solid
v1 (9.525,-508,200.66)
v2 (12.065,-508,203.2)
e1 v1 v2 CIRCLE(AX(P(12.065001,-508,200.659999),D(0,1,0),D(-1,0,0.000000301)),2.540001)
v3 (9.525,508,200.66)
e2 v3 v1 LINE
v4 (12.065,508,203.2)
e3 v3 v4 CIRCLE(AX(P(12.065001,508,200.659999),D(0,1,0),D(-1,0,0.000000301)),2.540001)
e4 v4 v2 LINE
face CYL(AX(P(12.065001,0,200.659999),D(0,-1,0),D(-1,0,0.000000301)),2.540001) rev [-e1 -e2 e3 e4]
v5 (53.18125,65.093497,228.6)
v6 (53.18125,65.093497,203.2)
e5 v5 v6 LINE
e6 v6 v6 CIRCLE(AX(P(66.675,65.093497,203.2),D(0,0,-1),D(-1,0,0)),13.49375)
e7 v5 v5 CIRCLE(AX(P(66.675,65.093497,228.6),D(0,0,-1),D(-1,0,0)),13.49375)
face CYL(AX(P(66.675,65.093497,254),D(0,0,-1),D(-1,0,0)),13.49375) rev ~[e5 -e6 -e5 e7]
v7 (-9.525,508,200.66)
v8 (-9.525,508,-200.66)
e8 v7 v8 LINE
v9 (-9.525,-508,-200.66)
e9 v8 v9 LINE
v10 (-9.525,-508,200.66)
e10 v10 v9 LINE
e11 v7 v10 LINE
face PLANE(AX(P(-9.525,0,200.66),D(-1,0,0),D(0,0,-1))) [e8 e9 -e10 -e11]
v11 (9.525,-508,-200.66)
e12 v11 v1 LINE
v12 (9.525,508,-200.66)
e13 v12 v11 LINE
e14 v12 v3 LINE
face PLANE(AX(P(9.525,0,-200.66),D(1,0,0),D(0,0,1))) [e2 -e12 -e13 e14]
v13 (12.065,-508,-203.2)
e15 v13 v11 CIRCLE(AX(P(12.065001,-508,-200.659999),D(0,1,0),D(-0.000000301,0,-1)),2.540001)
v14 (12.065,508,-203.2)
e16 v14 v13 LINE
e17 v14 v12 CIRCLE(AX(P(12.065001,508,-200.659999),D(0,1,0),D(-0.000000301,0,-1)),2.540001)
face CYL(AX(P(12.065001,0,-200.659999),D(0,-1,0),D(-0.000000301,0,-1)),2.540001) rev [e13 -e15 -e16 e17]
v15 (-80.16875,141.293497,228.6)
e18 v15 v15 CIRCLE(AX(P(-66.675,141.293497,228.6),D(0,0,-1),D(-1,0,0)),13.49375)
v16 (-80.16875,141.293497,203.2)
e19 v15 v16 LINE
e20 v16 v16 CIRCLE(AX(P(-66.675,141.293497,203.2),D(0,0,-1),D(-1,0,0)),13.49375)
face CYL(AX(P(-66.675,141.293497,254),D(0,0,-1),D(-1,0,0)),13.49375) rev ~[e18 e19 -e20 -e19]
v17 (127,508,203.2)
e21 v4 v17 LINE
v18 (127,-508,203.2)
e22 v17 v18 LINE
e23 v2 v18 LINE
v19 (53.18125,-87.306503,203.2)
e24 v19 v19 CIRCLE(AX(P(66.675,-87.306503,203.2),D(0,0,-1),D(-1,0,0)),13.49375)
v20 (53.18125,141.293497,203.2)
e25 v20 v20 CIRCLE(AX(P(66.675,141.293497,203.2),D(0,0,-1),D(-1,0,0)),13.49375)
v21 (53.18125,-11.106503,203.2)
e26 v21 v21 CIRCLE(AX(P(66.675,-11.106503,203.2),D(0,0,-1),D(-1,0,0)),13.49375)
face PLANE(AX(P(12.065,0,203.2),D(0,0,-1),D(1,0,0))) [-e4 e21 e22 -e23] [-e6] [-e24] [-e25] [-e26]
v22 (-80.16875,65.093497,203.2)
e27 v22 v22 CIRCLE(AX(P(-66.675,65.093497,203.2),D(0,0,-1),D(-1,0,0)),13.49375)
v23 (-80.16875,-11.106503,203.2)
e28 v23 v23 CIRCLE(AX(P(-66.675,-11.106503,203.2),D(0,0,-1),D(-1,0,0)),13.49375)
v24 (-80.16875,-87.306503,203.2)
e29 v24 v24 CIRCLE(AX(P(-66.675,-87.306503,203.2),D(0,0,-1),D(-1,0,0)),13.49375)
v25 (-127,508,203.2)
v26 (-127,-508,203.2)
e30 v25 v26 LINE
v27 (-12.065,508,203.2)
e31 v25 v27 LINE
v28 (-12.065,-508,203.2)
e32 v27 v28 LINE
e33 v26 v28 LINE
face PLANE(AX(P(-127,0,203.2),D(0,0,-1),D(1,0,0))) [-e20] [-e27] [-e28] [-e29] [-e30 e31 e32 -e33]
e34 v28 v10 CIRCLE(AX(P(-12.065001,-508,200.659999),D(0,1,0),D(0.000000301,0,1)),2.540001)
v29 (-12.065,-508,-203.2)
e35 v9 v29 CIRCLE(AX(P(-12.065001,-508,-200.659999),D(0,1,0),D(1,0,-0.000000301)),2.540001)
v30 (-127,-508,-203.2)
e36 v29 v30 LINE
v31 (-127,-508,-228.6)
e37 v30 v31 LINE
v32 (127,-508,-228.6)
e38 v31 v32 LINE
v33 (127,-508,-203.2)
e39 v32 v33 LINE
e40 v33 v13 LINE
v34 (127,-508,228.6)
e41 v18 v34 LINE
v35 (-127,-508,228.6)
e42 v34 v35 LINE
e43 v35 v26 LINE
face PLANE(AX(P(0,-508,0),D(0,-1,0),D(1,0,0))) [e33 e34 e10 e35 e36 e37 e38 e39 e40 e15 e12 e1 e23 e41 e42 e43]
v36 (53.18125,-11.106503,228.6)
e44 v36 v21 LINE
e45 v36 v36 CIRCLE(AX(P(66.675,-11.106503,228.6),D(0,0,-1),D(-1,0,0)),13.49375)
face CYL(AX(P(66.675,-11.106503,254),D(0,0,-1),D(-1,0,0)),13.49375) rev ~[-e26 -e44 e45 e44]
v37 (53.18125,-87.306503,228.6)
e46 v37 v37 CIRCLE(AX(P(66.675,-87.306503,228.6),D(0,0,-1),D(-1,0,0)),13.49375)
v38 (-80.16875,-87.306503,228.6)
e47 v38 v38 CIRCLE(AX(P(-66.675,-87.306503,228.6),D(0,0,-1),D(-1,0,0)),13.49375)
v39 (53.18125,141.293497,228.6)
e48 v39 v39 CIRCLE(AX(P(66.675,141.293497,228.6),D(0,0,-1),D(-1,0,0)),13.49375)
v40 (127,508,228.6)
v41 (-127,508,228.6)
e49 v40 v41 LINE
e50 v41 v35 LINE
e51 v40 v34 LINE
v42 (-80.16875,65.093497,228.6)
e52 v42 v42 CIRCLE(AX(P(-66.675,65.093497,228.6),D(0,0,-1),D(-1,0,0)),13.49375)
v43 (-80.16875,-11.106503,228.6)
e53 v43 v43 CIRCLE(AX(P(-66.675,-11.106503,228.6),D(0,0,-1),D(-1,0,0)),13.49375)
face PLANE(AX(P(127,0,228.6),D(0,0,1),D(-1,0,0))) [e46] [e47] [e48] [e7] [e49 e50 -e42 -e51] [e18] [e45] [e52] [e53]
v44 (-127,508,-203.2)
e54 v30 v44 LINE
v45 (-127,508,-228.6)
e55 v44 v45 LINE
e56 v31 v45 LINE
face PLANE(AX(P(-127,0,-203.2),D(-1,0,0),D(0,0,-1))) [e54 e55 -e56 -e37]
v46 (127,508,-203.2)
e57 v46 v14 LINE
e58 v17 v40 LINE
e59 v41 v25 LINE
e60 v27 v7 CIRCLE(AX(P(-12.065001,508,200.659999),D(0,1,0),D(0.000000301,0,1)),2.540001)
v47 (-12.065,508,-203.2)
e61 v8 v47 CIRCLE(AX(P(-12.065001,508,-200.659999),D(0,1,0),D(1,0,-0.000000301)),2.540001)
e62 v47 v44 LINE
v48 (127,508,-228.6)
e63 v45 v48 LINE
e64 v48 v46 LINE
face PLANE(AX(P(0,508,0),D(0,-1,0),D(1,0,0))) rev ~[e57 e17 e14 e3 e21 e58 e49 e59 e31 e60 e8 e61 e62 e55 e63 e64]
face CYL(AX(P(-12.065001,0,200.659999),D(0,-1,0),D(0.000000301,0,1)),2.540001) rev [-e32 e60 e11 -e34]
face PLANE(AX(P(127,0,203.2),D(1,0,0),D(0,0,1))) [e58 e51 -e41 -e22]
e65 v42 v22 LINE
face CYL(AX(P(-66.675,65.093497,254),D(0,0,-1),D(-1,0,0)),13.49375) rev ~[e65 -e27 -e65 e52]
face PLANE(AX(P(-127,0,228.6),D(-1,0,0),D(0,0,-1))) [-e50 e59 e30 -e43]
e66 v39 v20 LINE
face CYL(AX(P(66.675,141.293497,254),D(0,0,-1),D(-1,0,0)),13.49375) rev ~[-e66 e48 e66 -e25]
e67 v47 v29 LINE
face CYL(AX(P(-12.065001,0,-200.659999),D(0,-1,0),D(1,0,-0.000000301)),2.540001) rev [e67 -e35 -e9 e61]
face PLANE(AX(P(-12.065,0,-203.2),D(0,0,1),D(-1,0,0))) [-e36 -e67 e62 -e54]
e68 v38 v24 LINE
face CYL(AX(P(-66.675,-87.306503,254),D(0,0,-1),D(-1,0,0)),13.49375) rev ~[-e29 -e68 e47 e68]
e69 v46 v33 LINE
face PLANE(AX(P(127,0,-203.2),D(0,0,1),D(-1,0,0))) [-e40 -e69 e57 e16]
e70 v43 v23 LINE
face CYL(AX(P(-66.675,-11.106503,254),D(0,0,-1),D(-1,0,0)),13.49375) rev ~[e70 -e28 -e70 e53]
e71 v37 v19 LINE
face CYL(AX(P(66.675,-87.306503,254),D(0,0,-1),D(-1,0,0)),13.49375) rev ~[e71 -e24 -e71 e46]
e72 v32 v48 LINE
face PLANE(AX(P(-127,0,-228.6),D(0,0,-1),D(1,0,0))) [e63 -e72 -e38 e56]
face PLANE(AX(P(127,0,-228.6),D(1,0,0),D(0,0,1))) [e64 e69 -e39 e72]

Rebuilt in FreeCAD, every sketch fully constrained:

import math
import FreeCAD as App
import Part
import Sketcher

V = App.Vector
Q = App.Units.Quantity

doc = App.newDocument("Part")
body = doc.addObject("PartDesign::Body", "Body")

# Sketch on XZ plane
sketch1 = body.newObject("Sketcher::SketchObject", "Sketch")
sketch1.AttachmentSupport = (doc.getObject("XZ_Plane"), [""])
sketch1.MapMode = "FlatFace"
sketch1.addGeometry(Part.LineSegment(V(127, -228.6, 0), V(127, -203.2, 0)), False)
sketch1.addGeometry(Part.LineSegment(V(127, -203.2, 0), V(12.065, -203.2, 0)), False)
sketch1.addGeometry(Part.ArcOfCircle(Part.Circle(V(12.065001, -200.659999, 0), V(0, 0, 1), 2.540001), math.radians(-179.999983), math.radians(-90.000017)), False)
sketch1.addGeometry(Part.LineSegment(V(9.525, -200.66, 0), V(9.525, 200.66, 0)), False)
sketch1.addGeometry(Part.ArcOfCircle(Part.Circle(V(12.065001, 200.659999, 0), V(0, 0, 1), 2.540001), math.radians(90.000017), math.radians(179.999983)), False)
sketch1.addGeometry(Part.LineSegment(V(12.065, 203.2, 0), V(127, 203.2, 0)), False)
sketch1.addGeometry(Part.LineSegment(V(127, 203.2, 0), V(127, 228.6, 0)), False)
sketch1.addGeometry(Part.LineSegment(V(127, 228.6, 0), V(-127, 228.6, 0)), False)
sketch1.addGeometry(Part.LineSegment(V(-127, 228.6, 0), V(-127, 203.2, 0)), False)
sketch1.addGeometry(Part.LineSegment(V(-127, 203.2, 0), V(-12.065, 203.2, 0)), False)
sketch1.addGeometry(Part.ArcOfCircle(Part.Circle(V(-12.065001, 200.659999, 0), V(0, 0, 1), 2.540001), math.radians(0.000017), math.radians(89.999983)), False)
sketch1.addGeometry(Part.LineSegment(V(-9.525, 200.66, 0), V(-9.525, -200.66, 0)), False)
sketch1.addGeometry(Part.ArcOfCircle(Part.Circle(V(-12.065001, -200.659999, 0), V(0, 0, 1), 2.540001), math.radians(-89.999983), math.radians(-0.000017)), False)
sketch1.addGeometry(Part.LineSegment(V(-12.065, -203.2, 0), V(-127, -203.2, 0)), False)
sketch1.addGeometry(Part.LineSegment(V(-127, -203.2, 0), V(-127, -228.6, 0)), False)
sketch1.addGeometry(Part.LineSegment(V(-127, -228.6, 0), V(127, -228.6, 0)), False)
sketch1.addConstraint(Sketcher.Constraint("Coincident", 0, 2, 1, 1))
sketch1.addConstraint(Sketcher.Constraint("Tangent", 1, 2, 2, 2))
sketch1.addConstraint(Sketcher.Constraint("Tangent", 2, 1, 3, 1))
sketch1.addConstraint(Sketcher.Constraint("Tangent", 3, 2, 4, 2))
sketch1.addConstraint(Sketcher.Constraint("Tangent", 4, 1, 5, 1))
sketch1.addConstraint(Sketcher.Constraint("Coincident", 5, 2, 6, 1))
sketch1.addConstraint(Sketcher.Constraint("Coincident", 6, 2, 7, 1))
sketch1.addConstraint(Sketcher.Constraint("Coincident", 7, 2, 8, 1))
sketch1.addConstraint(Sketcher.Constraint("Coincident", 8, 2, 9, 1))
sketch1.addConstraint(Sketcher.Constraint("Tangent", 9, 2, 10, 2))
sketch1.addConstraint(Sketcher.Constraint("Tangent", 10, 1, 11, 1))
sketch1.addConstraint(Sketcher.Constraint("Tangent", 11, 2, 12, 2))
sketch1.addConstraint(Sketcher.Constraint("Tangent", 12, 1, 13, 1))
sketch1.addConstraint(Sketcher.Constraint("Coincident", 13, 2, 14, 1))
sketch1.addConstraint(Sketcher.Constraint("Coincident", 14, 2, 15, 1))
sketch1.addConstraint(Sketcher.Constraint("Coincident", 15, 2, 0, 1))
sketch1.addConstraint(Sketcher.Constraint("Vertical", 0))
sketch1.addConstraint(Sketcher.Constraint("Horizontal", 1))
sketch1.addConstraint(Sketcher.Constraint("Vertical", 3))
sketch1.addConstraint(Sketcher.Constraint("Horizontal", 5))
sketch1.addConstraint(Sketcher.Constraint("Vertical", 6))
sketch1.addConstraint(Sketcher.Constraint("Horizontal", 7))
sketch1.addConstraint(Sketcher.Constraint("Vertical", 8))
sketch1.addConstraint(Sketcher.Constraint("Horizontal", 9))
sketch1.addConstraint(Sketcher.Constraint("Vertical", 11))
sketch1.addConstraint(Sketcher.Constraint("Horizontal", 13))
sketch1.addConstraint(Sketcher.Constraint("Vertical", 14))
sketch1.addConstraint(Sketcher.Constraint("Horizontal", 15))
sketch1.addConstraint(Sketcher.Constraint("Equal", 2, 4))
sketch1.addConstraint(Sketcher.Constraint("Equal", 4, 10))
sketch1.addConstraint(Sketcher.Constraint("Equal", 10, 12))
sketch1.addConstraint(Sketcher.Constraint("Symmetric", 2, 3, 10, 3, -1, 1))
sketch1.addConstraint(Sketcher.Constraint("Symmetric", 5, 2, 13, 2, -1, 1))
sketch1.addConstraint(Sketcher.Constraint("Symmetric", 7, 2, 15, 2, -1, 1))
sketch1.addConstraint(Sketcher.Constraint("Symmetric", 5, 2, 8, 2, -2))
sketch1.addConstraint(Sketcher.Constraint("Radius", 2, Q("0.1 in")))
sketch1.addConstraint(Sketcher.Constraint("DistanceX", 7, 2, 7, 1, Q("10 in")))
sketch1.addConstraint(Sketcher.Constraint("DistanceY", 0, 1, 0, 2, Q("1 in")))
sketch1.addConstraint(Sketcher.Constraint("DistanceY", 3, 1, 3, 2, Q("15.8 in")))
sketch1.addConstraint(Sketcher.Constraint("DistanceX", 1, 2, 1, 1, Q("4.525 in")))
pad1 = body.newObject("PartDesign::Pad", "Pad")
pad1.Profile = sketch1
pad1.Length = Q("40 in")
pad1.Midplane = True

# Sketch on XY plane
sketch2 = body.newObject("Sketcher::SketchObject", "Sketch001")
sketch2.AttachmentSupport = (doc.getObject("XY_Plane"), [""])
sketch2.MapMode = "FlatFace"
sketch2.AttachmentOffset = App.Placement(V(0, 0, 9 * 25.4), App.Rotation())
sketch2.addGeometry(Part.Circle(V(-66.675, 141.293497, 0), V(0, 0, 1), 13.49375), False)
sketch2.addGeometry(Part.Circle(V(-66.675, 65.093497, 0), V(0, 0, 1), 13.49375), False)
sketch2.addGeometry(Part.Circle(V(-66.675, -11.106503, 0), V(0, 0, 1), 13.49375), False)
sketch2.addGeometry(Part.Circle(V(-66.675, -87.306503, 0), V(0, 0, 1), 13.49375), False)
sketch2.addGeometry(Part.Circle(V(66.675, -87.306503, 0), V(0, 0, 1), 13.49375), False)
sketch2.addGeometry(Part.Circle(V(66.675, -11.106503, 0), V(0, 0, 1), 13.49375), False)
sketch2.addGeometry(Part.Circle(V(66.675, 65.093497, 0), V(0, 0, 1), 13.49375), False)
sketch2.addGeometry(Part.Circle(V(66.675, 141.293497, 0), V(0, 0, 1), 13.49375), False)
sketch2.addConstraint(Sketcher.Constraint("Equal", 0, 1))
sketch2.addConstraint(Sketcher.Constraint("Equal", 1, 2))
sketch2.addConstraint(Sketcher.Constraint("Equal", 2, 3))
sketch2.addConstraint(Sketcher.Constraint("Equal", 3, 4))
sketch2.addConstraint(Sketcher.Constraint("Equal", 4, 5))
sketch2.addConstraint(Sketcher.Constraint("Equal", 5, 6))
sketch2.addConstraint(Sketcher.Constraint("Equal", 6, 7))
sketch2.addConstraint(Sketcher.Constraint("Symmetric", 3, 3, 4, 3, -2))
sketch2.addConstraint(Sketcher.Constraint("Symmetric", 2, 3, 5, 3, -2))
sketch2.addConstraint(Sketcher.Constraint("Symmetric", 1, 3, 6, 3, -2))
sketch2.addConstraint(Sketcher.Constraint("Symmetric", 0, 3, 7, 3, -2))
sketch2.addConstraint(Sketcher.Constraint("Vertical", 0, 3, 1, 3))
sketch2.addConstraint(Sketcher.Constraint("Vertical", 1, 3, 2, 3))
sketch2.addConstraint(Sketcher.Constraint("Vertical", 2, 3, 3, 3))
sketch2.addConstraint(Sketcher.Constraint("Diameter", 0, Q("1.0625 in")))
sketch2.addConstraint(Sketcher.Constraint("DistanceY", 1, 3, 0, 3, Q("3 in")))
sketch2.addConstraint(Sketcher.Constraint("DistanceY", 2, 3, 1, 3, Q("3 in")))
sketch2.addConstraint(Sketcher.Constraint("DistanceY", 3, 3, 2, 3, Q("3 in")))
sketch2.addConstraint(Sketcher.Constraint("DistanceX", 3, 3, 4, 3, Q("5.25 in")))
sketch2.addConstraint(Sketcher.Constraint("DistanceY", -1, 1, 0, 3, Q("141.293497 mm")))
doc.recompute()
hole = body.newObject("PartDesign::Hole", "Hole")
hole.Profile = sketch2
hole.ThreadType = "None"
hole.Diameter = Q("1.0625 in")
hole.DepthType = "Dimension"
hole.Depth = Q("1 in")
hole.DrillPoint = "Flat"

doc.recompute()
